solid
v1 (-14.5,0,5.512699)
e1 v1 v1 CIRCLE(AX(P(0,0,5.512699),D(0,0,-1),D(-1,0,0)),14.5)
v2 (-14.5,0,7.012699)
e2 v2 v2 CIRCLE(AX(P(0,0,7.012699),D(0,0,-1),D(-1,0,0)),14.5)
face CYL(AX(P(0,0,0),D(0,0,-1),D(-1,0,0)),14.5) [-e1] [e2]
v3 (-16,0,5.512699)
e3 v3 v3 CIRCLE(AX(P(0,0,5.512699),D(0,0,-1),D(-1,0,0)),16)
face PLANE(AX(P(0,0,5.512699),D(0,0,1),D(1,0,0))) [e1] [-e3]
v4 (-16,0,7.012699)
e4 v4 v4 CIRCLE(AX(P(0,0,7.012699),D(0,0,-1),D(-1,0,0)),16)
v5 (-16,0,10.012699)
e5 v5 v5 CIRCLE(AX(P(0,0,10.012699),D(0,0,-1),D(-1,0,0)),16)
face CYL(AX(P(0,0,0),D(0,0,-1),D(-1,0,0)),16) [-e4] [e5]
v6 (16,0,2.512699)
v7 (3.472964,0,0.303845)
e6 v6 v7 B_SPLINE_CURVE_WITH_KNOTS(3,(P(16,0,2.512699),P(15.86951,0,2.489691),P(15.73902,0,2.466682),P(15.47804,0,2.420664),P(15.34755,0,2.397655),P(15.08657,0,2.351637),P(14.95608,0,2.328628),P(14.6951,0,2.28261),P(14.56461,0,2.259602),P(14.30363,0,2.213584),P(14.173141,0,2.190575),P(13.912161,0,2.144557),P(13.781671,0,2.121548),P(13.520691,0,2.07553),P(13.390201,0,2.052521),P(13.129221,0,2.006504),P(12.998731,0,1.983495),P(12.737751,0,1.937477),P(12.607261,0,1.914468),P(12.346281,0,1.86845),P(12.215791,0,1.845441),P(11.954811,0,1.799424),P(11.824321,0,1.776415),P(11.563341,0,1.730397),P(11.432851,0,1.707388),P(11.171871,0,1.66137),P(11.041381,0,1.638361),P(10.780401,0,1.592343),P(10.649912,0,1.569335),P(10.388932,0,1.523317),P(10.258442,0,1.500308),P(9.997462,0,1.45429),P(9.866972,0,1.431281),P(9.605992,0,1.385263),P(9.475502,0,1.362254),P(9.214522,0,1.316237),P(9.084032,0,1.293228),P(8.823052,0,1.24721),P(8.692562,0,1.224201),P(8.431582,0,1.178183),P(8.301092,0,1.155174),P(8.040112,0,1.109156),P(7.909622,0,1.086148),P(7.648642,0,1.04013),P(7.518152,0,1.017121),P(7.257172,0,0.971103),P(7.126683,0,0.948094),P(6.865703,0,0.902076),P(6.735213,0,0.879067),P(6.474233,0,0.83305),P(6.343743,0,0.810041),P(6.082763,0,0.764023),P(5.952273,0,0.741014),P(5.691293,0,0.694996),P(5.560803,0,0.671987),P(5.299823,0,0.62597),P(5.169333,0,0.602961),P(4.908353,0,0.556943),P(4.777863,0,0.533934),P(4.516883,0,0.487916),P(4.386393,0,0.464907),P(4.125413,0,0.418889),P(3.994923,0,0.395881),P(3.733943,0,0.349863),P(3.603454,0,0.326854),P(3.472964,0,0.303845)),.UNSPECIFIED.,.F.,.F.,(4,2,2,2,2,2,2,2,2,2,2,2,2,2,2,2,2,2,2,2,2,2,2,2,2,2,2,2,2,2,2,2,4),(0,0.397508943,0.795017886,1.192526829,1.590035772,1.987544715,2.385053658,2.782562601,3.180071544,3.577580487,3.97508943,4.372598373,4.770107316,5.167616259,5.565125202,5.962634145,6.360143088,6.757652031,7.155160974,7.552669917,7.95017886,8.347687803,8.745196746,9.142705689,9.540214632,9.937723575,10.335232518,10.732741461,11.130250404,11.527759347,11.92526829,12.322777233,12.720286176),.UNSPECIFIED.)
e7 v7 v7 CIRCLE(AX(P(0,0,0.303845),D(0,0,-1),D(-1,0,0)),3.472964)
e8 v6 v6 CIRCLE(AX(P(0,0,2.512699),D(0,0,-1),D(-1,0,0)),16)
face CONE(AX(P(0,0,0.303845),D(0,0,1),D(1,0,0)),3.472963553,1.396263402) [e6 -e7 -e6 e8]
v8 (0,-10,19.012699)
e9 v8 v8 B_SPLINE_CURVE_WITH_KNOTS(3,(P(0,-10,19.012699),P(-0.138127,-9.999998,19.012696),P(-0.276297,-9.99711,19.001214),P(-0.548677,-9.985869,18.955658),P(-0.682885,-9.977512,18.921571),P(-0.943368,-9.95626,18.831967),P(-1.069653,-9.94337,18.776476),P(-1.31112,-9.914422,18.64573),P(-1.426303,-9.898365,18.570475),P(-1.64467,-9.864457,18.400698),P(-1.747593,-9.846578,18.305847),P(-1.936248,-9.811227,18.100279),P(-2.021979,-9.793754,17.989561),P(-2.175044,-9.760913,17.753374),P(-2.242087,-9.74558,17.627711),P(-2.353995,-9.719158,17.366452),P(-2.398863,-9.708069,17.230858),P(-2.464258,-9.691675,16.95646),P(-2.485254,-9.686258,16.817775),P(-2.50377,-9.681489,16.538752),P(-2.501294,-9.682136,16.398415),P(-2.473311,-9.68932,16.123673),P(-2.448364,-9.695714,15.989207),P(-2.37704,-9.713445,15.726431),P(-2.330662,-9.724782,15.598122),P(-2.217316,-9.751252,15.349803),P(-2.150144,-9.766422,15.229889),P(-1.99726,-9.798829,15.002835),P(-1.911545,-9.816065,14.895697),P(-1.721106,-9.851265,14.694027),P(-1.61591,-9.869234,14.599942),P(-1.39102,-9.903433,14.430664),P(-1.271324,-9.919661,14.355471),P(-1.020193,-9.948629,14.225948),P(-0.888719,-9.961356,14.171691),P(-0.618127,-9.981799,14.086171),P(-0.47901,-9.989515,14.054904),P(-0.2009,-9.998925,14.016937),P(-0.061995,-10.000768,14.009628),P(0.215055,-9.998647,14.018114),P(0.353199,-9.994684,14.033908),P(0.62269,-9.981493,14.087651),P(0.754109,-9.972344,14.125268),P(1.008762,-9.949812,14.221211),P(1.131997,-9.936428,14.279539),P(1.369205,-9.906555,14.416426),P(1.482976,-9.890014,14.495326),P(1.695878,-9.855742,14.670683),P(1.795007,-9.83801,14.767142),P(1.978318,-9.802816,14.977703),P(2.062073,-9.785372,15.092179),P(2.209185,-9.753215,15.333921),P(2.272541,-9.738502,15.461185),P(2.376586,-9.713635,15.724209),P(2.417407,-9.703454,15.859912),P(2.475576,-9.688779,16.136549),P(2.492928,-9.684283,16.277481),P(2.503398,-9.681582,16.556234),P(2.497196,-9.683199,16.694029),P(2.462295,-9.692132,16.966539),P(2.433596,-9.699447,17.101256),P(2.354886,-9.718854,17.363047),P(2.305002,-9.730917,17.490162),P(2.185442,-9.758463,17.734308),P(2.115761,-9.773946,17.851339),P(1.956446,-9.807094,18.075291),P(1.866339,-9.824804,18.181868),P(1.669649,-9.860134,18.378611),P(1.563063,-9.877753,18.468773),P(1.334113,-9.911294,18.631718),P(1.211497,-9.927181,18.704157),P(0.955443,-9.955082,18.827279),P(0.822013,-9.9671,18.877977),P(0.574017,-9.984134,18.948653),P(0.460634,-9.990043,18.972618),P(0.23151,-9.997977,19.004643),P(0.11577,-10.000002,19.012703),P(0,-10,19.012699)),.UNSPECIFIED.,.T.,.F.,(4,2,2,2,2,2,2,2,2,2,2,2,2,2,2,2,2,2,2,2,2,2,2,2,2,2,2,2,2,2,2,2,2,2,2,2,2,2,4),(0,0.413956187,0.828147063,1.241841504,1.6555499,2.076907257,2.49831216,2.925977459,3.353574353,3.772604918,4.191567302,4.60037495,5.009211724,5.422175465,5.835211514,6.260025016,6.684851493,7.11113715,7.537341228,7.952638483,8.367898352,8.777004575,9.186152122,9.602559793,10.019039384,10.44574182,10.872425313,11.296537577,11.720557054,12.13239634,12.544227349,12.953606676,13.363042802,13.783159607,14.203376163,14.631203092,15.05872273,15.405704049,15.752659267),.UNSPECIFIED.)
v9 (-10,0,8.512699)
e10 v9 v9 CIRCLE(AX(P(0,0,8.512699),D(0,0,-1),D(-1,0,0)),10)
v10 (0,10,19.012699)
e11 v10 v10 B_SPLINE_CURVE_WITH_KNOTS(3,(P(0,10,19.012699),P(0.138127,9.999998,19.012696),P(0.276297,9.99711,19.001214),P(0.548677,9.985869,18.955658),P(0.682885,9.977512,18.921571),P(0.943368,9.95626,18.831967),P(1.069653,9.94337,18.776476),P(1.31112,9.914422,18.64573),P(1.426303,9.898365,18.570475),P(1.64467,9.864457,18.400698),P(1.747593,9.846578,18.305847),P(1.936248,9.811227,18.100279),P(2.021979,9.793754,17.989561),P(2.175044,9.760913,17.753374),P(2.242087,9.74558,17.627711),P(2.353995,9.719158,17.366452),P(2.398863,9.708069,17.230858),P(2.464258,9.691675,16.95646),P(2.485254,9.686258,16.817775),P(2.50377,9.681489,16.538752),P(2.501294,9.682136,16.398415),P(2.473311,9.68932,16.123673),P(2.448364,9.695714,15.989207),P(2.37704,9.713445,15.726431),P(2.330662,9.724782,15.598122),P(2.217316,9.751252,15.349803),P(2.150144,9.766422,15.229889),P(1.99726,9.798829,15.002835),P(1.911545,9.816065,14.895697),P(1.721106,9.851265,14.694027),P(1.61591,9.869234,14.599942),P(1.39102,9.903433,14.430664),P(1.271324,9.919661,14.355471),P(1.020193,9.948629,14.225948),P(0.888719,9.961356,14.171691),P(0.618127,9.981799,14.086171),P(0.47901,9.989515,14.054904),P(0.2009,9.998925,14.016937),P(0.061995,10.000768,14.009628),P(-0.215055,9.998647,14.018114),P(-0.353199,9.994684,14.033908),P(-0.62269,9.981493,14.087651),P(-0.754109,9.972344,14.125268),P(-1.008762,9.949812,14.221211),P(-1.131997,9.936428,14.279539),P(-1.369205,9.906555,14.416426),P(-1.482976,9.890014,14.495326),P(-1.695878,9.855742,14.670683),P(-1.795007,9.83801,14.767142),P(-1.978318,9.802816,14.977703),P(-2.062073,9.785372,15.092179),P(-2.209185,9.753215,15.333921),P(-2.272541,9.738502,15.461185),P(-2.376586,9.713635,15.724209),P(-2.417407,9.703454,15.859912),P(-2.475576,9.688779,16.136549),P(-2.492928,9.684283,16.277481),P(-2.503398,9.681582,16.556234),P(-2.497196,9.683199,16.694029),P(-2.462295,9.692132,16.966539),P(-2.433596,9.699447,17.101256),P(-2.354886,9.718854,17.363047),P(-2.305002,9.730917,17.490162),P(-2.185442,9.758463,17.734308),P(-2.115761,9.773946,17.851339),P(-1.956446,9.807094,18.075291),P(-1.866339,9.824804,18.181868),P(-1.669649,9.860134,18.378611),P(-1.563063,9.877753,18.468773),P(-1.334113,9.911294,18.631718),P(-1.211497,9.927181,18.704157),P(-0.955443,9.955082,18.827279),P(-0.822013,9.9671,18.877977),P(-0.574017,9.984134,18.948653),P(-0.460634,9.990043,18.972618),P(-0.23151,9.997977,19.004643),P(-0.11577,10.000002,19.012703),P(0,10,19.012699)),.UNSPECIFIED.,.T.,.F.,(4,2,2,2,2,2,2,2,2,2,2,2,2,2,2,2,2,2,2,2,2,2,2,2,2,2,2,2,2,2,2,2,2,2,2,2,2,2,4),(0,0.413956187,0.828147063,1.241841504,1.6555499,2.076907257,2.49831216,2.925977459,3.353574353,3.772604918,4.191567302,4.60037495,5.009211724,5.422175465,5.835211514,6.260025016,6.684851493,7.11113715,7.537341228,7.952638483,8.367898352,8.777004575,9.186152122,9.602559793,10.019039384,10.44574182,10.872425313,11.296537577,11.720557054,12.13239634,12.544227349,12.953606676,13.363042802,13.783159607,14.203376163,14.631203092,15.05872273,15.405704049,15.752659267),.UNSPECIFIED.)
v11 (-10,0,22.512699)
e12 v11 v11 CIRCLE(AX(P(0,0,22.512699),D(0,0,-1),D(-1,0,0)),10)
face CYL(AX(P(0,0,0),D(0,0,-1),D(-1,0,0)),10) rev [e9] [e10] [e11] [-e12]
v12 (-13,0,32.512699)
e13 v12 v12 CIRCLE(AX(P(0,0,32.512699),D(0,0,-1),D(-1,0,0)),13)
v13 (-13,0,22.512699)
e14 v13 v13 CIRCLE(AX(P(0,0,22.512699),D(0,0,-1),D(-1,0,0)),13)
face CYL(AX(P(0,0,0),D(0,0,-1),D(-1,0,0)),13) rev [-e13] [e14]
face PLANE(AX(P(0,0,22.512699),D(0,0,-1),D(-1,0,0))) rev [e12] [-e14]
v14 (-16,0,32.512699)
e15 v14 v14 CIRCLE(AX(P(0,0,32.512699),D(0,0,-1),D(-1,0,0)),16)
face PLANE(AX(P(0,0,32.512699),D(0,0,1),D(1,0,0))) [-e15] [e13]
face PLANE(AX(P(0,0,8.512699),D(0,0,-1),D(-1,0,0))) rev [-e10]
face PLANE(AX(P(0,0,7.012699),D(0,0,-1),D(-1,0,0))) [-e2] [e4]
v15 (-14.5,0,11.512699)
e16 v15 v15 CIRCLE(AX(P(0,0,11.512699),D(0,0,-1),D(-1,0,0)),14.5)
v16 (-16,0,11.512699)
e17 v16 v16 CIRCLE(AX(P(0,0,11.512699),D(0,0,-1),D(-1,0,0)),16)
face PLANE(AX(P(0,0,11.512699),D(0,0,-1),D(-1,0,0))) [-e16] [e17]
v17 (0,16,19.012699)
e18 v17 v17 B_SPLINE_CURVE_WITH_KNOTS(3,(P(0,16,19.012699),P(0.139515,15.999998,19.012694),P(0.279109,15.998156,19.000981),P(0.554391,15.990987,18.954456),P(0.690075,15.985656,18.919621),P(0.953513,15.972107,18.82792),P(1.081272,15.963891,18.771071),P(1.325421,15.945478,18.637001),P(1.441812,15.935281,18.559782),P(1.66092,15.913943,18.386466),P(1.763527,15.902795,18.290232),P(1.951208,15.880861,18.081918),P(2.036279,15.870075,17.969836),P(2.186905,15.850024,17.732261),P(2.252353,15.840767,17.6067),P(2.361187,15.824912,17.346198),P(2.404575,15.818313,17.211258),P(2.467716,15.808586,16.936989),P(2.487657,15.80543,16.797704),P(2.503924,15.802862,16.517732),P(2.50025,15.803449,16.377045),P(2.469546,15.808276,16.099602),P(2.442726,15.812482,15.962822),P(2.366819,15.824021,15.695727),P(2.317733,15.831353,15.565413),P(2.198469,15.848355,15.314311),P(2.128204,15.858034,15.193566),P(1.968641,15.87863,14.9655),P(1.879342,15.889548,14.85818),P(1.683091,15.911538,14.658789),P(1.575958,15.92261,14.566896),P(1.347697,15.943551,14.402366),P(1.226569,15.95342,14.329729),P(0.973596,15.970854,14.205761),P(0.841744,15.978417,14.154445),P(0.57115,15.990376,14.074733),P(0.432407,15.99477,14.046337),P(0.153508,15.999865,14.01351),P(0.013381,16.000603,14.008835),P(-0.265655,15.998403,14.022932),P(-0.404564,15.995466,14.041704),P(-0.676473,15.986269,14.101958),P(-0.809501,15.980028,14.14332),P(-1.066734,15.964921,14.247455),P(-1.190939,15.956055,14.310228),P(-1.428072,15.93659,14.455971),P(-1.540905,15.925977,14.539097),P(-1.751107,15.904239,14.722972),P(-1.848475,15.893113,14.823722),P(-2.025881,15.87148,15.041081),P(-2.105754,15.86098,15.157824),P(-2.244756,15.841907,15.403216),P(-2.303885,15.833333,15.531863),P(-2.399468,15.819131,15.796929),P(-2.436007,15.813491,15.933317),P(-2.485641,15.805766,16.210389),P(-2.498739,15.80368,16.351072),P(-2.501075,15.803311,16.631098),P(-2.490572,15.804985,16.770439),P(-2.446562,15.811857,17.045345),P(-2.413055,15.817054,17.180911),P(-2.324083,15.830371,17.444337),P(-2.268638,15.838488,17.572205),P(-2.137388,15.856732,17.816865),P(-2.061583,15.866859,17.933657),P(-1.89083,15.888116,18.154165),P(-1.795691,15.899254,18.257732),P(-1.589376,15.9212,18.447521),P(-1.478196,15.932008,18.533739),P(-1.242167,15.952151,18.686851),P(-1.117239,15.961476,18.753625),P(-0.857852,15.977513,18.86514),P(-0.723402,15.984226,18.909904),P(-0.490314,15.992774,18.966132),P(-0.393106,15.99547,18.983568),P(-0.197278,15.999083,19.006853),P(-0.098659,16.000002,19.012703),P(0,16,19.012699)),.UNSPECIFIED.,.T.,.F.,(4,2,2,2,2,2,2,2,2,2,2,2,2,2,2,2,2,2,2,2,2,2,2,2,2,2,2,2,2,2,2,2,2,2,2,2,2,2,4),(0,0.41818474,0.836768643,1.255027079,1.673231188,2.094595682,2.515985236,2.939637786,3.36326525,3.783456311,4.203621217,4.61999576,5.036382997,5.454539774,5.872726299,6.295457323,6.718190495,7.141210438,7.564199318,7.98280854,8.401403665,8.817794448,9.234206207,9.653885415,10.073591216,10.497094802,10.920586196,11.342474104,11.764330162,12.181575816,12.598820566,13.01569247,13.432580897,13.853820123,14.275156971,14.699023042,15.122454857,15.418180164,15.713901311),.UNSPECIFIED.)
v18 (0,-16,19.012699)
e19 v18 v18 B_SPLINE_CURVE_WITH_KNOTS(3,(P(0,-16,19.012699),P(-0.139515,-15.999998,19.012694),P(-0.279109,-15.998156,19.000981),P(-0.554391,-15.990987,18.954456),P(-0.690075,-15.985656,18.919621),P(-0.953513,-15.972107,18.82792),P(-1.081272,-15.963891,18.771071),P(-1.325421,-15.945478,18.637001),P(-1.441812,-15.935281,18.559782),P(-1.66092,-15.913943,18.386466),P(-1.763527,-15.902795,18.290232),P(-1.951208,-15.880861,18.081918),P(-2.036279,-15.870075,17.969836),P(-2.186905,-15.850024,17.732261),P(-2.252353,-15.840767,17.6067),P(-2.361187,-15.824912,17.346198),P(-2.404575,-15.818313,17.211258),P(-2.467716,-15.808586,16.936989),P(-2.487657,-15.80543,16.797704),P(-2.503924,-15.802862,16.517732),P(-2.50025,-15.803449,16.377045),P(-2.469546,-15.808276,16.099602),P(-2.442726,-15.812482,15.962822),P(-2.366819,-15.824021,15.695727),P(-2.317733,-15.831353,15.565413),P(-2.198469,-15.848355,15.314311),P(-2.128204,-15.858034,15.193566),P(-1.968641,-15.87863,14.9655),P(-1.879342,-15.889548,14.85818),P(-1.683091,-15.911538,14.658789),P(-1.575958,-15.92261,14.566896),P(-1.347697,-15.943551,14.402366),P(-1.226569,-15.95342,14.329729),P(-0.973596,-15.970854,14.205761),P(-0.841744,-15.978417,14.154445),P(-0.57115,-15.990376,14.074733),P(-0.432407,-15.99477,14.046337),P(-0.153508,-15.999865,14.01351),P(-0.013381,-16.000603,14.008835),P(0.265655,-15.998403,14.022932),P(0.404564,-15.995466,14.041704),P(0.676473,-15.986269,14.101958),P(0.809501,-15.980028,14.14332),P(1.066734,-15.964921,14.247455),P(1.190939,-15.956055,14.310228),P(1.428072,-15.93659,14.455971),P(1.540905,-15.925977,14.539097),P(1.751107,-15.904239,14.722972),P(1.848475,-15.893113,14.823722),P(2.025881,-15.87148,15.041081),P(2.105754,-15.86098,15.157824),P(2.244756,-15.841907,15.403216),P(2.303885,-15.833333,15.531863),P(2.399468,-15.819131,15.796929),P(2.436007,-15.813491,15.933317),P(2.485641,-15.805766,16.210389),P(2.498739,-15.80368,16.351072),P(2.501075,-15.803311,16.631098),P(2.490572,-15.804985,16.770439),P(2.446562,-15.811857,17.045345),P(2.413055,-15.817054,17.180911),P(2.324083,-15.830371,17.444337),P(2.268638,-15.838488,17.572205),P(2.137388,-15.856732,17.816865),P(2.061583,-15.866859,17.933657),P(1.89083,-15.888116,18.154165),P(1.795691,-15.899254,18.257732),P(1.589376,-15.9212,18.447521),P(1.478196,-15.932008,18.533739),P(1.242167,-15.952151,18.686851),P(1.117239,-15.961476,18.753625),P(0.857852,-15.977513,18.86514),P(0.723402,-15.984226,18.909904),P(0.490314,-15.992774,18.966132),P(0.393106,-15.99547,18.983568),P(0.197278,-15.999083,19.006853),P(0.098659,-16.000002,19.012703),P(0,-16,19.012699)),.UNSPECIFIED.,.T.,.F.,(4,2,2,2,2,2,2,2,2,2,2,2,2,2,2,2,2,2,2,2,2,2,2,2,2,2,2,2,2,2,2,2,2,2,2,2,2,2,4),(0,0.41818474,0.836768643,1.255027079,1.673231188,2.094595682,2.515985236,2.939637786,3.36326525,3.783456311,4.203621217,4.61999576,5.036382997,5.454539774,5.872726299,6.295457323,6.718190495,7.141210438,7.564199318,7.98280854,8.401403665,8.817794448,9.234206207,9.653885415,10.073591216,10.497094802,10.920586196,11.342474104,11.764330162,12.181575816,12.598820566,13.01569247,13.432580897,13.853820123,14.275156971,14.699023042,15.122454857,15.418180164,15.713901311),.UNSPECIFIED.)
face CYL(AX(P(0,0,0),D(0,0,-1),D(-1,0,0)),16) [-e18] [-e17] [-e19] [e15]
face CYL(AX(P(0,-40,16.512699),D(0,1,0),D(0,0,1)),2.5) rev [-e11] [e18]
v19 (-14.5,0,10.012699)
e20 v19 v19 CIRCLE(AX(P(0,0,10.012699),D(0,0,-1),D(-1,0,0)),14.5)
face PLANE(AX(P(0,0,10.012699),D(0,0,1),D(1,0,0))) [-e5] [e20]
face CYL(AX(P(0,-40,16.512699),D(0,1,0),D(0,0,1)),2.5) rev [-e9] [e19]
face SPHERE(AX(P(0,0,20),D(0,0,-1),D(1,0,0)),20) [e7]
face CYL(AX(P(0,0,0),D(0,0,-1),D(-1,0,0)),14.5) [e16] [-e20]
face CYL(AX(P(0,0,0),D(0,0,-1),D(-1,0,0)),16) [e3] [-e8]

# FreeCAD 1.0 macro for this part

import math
import FreeCAD as App
import Part
import Sketcher
Q = App.Units.Quantity

doc = App.newDocument("Part")
body = doc.addObject("PartDesign::Body", "Body")

# Sketch on XZ plane
sketch1 = doc.addObject("Sketcher::SketchObject", "Sketch")
body.addObject(sketch1)
sketch1.AttachmentSupport = (doc.XZ_Plane, [""])
sketch1.MapMode = "FlatFace"
sketch1.addGeometry(Part.LineSegment(App.Vector(16, 2.5, 0), App.Vector(3.5, 0.3, 0)), False)
sketch1.addGeometry(Part.ArcOfCircle(Part.Circle(App.Vector(0, 20, 0), App.Vector(0, 0, 1), 20), math.radians(-90), math.radians(-80)), False)
sketch1.addGeometry(Part.LineSegment(App.Vector(0, 0, 0), App.Vector(0, 8.5, 0)), False)
sketch1.addGeometry(Part.LineSegment(App.Vector(0, 8.5, 0), App.Vector(10, 8.5, 0)), False)
sketch1.addGeometry(Part.LineSegment(App.Vector(10, 8.5, 0), App.Vector(10, 22.5, 0)), False)
sketch1.addGeometry(Part.LineSegment(App.Vector(10, 22.5, 0), App.Vector(13, 22.5, 0)), False)
sketch1.addGeometry(Part.LineSegment(App.Vector(13, 22.5, 0), App.Vector(13, 32.5, 0)), False)
sketch1.addGeometry(Part.LineSegment(App.Vector(13, 32.5, 0), App.Vector(16, 32.5, 0)), False)
sketch1.addGeometry(Part.LineSegment(App.Vector(16, 32.5, 0), App.Vector(16, 11.5, 0)), False)
sketch1.addGeometry(Part.LineSegment(App.Vector(16, 11.5, 0), App.Vector(14.5, 11.5, 0)), False)
sketch1.addGeometry(Part.LineSegment(App.Vector(14.5, 11.5, 0), App.Vector(14.5, 10, 0)), False)
sketch1.addGeometry(Part.LineSegment(App.Vector(14.5, 10, 0), App.Vector(16, 10, 0)), False)
sketch1.addGeometry(Part.LineSegment(App.Vector(16, 10, 0), App.Vector(16, 7, 0)), False)
sketch1.addGeometry(Part.LineSegment(App.Vector(16, 7, 0), App.Vector(14.5, 7, 0)), False)
sketch1.addGeometry(Part.LineSegment(App.Vector(14.5, 7, 0), App.Vector(14.5, 5.5, 0)), False)
sketch1.addGeometry(Part.LineSegment(App.Vector(14.5, 5.5, 0), App.Vector(16, 5.5, 0)), False)
sketch1.addGeometry(Part.LineSegment(App.Vector(16, 5.5, 0), App.Vector(16, 2.5, 0)), False)
sketch1.addConstraint(Sketcher.Constraint("Tangent", 0, 2, 1, 2))
sketch1.addConstraint(Sketcher.Constraint("Coincident", 1, 1, 2, 1))
sketch1.addConstraint(Sketcher.Constraint("Coincident", 2, 2, 3, 1))
sketch1.addConstraint(Sketcher.Constraint("Coincident", 3, 2, 4, 1))
sketch1.addConstraint(Sketcher.Constraint("Coincident", 4, 2, 5, 1))
sketch1.addConstraint(Sketcher.Constraint("Coincident", 5, 2, 6, 1))
sketch1.addConstraint(Sketcher.Constraint("Coincident", 6, 2, 7, 1))
sketch1.addConstraint(Sketcher.Constraint("Coincident", 7, 2, 8, 1))
sketch1.addConstraint(Sketcher.Constraint("Coincident", 8, 2, 9, 1))
sketch1.addConstraint(Sketcher.Constraint("Coincident", 9, 2, 10, 1))
sketch1.addConstraint(Sketcher.Constraint("Coincident", 10, 2, 11, 1))
sketch1.addConstraint(Sketcher.Constraint("Coincident", 11, 2, 12, 1))
sketch1.addConstraint(Sketcher.Constraint("Coincident", 12, 2, 13, 1))
sketch1.addConstraint(Sketcher.Constraint("Coincident", 13, 2, 14, 1))
sketch1.addConstraint(Sketcher.Constraint("Coincident", 14, 2, 15, 1))
sketch1.addConstraint(Sketcher.Constraint("Coincident", 15, 2, 16, 1))
sketch1.addConstraint(Sketcher.Constraint("Coincident", 16, 2, 0, 1))
sketch1.addConstraint(Sketcher.Constraint("Vertical", 2))
sketch1.addConstraint(Sketcher.Constraint("Horizontal", 3))
sketch1.addConstraint(Sketcher.Constraint("Vertical", 4))
sketch1.addConstraint(Sketcher.Constraint("Horizontal", 5))
sketch1.addConstraint(Sketcher.Constraint("Vertical", 6))
sketch1.addConstraint(Sketcher.Constraint("Horizontal", 7))
sketch1.addConstraint(Sketcher.Constraint("Vertical", 8))
sketch1.addConstraint(Sketcher.Constraint("Horizontal", 9))
sketch1.addConstraint(Sketcher.Constraint("Vertical", 10))
sketch1.addConstraint(Sketcher.Constraint("Horizontal", 11))
sketch1.addConstraint(Sketcher.Constraint("Vertical", 12))
sketch1.addConstraint(Sketcher.Constraint("Horizontal", 13))
sketch1.addConstraint(Sketcher.Constraint("Vertical", 14))
sketch1.addConstraint(Sketcher.Constraint("Horizontal", 15))
sketch1.addConstraint(Sketcher.Constraint("Vertical", 16))
sketch1.addConstraint(Sketcher.Constraint("Coincident", 1, 1, -1, 1))
sketch1.addConstraint(Sketcher.Constraint("PointOnObject", 1, 3, -2))
sketch1.addConstraint(Sketcher.Constraint("Vertical", 8, 2, 11, 2))
sketch1.addConstraint(Sketcher.Constraint("Vertical", 10, 2, 13, 2))
sketch1.addConstraint(Sketcher.Constraint("Vertical", 12, 2, 15, 2))
sketch1.addConstraint(Sketcher.Constraint("Equal", 5, 7))
sketch1.addConstraint(Sketcher.Constraint("Equal", 3, 6))
sketch1.addConstraint(Sketcher.Constraint("Equal", 15, 10))
sketch1.addConstraint(Sketcher.Constraint("Equal", 7, 12))
sketch1.addConstraint(Sketcher.Constraint("Equal", 10, 14))
sketch1.addConstraint(Sketcher.Constraint("Equal", 12, 16))
sketch1.addConstraint(Sketcher.Constraint("Radius", 1, Q("20 mm")))
sketch1.addConstraint(Sketcher.Constraint("DistanceX", 3, 1, 3, 2, Q("10 mm")))
sketch1.addConstraint(Sketcher.Constraint("DistanceX", 5, 1, 5, 2, Q("3 mm")))
sketch1.addConstraint(Sketcher.Constraint("DistanceY", 4, 1, 4, 2, Q("14 mm")))
sketch1.addConstraint(Sketcher.Constraint("DistanceY", 8, 2, 8, 1, Q("21 mm")))
sketch1.addConstraint(Sketcher.Constraint("Angle", 0, Q("-170 deg")))
sketch1.addConstraint(Sketcher.Constraint("DistanceX", 9, 2, 9, 1, Q("1.5 mm")))
revolution = doc.addObject("PartDesign::Revolution", "Revolution")
body.addObject(revolution)
revolution.Profile = sketch1
revolution.ReferenceAxis = (sketch1, ["V_Axis"])
revolution.Angle = 360

# Sketch on XZ plane
sketch2 = doc.addObject("Sketcher::SketchObject", "Sketch001")
body.addObject(sketch2)
sketch2.AttachmentSupport = (doc.XZ_Plane, [""])
sketch2.MapMode = "FlatFace"
sketch2.addGeometry(Part.Circle(App.Vector(0, 16.5, 0), App.Vector(0, 0, 1), 2.5), False)
sketch2.addConstraint(Sketcher.Constraint("PointOnObject", 0, 3, -2))
sketch2.addConstraint(Sketcher.Constraint("Diameter", 0, Q("5 mm")))
sketch2.addConstraint(Sketcher.Constraint("DistanceY", -1, 1, 0, 3, Q("16.512699 mm")))
pocket1 = doc.addObject("PartDesign::Pocket", "Pocket")
body.addObject(pocket1)
pocket1.Profile = sketch2
pocket1.Length = 80
pocket1.Midplane = True

doc.recompute()
